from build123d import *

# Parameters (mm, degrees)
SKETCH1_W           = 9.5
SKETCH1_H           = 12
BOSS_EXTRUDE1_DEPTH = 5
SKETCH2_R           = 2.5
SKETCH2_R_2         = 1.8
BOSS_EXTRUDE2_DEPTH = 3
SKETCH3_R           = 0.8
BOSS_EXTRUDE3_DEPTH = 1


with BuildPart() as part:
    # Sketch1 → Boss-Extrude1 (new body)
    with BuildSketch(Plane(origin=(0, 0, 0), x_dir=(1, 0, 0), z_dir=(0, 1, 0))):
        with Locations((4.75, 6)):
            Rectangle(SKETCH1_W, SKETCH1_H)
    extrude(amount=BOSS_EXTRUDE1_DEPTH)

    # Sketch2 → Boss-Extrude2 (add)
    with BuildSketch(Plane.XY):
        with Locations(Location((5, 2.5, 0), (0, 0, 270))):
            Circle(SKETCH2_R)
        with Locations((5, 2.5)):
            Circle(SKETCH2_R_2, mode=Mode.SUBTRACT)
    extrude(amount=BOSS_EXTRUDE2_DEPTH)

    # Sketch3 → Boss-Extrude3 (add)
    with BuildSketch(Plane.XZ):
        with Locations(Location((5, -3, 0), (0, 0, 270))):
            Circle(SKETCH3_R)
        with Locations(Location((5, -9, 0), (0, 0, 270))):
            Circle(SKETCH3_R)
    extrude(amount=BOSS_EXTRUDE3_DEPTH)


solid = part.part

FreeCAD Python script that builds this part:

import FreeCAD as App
import Part
import Sketcher
from FreeCAD import Vector


def add_polygon(sketch, points):
    """Adds a closed chain of lines whose ends are joined by coincident constraints."""
    first, n = sketch.GeometryCount, len(points)
    for a, b in zip(points, points[1:] + points[:1]):
        sketch.addGeometry(Part.LineSegment(App.Vector(*a, 0), App.Vector(*b, 0)), False)
    for i in range(n):
        sketch.addConstraint(Sketcher.Constraint("Coincident", first + i, 2, first + (i + 1) % n, 1))

doc = App.newDocument("Part")
body = doc.addObject("PartDesign::Body", "Body")

sketch1 = doc.addObject("Sketcher::SketchObject", "Sketch")
body.addObject(sketch1)
sketch1.AttachmentSupport = (doc.XZ_Plane, [""])
sketch1.MapMode = "FlatFace"
add_polygon(sketch1, [(0, -12), (0, 0), (10, 0), (10, -12)])
sketch1.addConstraint(Sketcher.Constraint("Vertical", 0))
sketch1.addConstraint(Sketcher.Constraint("Horizontal", 1))
sketch1.addConstraint(Sketcher.Constraint("Vertical", 2))
sketch1.addConstraint(Sketcher.Constraint("Horizontal", 3))
sketch1.addConstraint(Sketcher.Constraint("Coincident", 0, 2, -1, 1))
sketch1.addConstraint(Sketcher.Constraint("DistanceY", 0, 1, 0, 2, 12.0))
sketch1.addConstraint(Sketcher.Constraint("DistanceX", 1, 1, 1, 2, 9.5))
pad1 = doc.addObject("PartDesign::Pad", "Pad")
body.addObject(pad1)
pad1.Profile = sketch1
pad1.Length = 5
pad1.Reversed = True

sketch2 = doc.addObject("Sketcher::SketchObject", "Sketch001")
body.addObject(sketch2)
sketch2.AttachmentSupport = (doc.XY_Plane, [""])
sketch2.MapMode = "FlatFace"
sketch2.addGeometry(Part.Circle(Vector(5, 2.5, 0), Vector(0, 0, 1), 2.5), False)
sketch2.addGeometry(Part.Circle(Vector(5, 2.5, 0), Vector(0, 0, 1), 1.8), False)
sketch2.addConstraint(Sketcher.Constraint("Coincident", 1, 3, 0, 3))
sketch2.addConstraint(Sketcher.Constraint("Diameter", 0, 5.0))
sketch2.addConstraint(Sketcher.Constraint("Diameter", 1, 3.6))
sketch2.addConstraint(Sketcher.Constraint("DistanceX", -1, 1, 0, 3, 5.0))
sketch2.addConstraint(Sketcher.Constraint("DistanceY", -1, 1, 0, 3, 2.5))
pad2 = doc.addObject("PartDesign::Pad", "Pad001")
body.addObject(pad2)
pad2.Profile = sketch2
pad2.Length = 3

sketch3 = doc.addObject("Sketcher::SketchObject", "Sketch002")
body.addObject(sketch3)
sketch3.AttachmentSupport = (doc.XZ_Plane, [""])
sketch3.MapMode = "FlatFace"
sketch3.addGeometry(Part.Circle(Vector(5, -3, 0), Vector(0, 0, 1), 0.8), False)
sketch3.addGeometry(Part.Circle(Vector(5, -9, 0), Vector(0, 0, 1), 0.8), False)
sketch3.addConstraint(Sketcher.Constraint("Equal", 0, 1))
sketch3.addConstraint(Sketcher.Constraint("Vertical", 0, 3, 1, 3))
sketch3.addConstraint(Sketcher.Constraint("Diameter", 0, 1.6))
sketch3.addConstraint(Sketcher.Constraint("DistanceX", -1, 1, 0, 3, 5.0))
sketch3.addConstraint(Sketcher.Constraint("DistanceY", 0, 3, -1, 1, 3.0))
sketch3.addConstraint(Sketcher.Constraint("DistanceY", 1, 3, -1, 1, 9.0))
pad3 = doc.addObject("PartDesign::Pad", "Pad002")
body.addObject(pad3)
pad3.Profile = sketch3
pad3.Length = 1

doc.recompute()
